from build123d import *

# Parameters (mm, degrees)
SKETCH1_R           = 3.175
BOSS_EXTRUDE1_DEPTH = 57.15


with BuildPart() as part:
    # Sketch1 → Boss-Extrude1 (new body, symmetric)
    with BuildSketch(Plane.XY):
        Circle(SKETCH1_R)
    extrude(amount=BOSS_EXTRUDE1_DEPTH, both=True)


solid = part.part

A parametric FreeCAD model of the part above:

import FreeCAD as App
import Part
import Sketcher
Q = App.Units.Quantity

doc = App.newDocument("Part")
body = doc.addObject("PartDesign::Body", "Body")

# Sketch on XY plane
sketch1 = body.newObject("Sketcher::SketchObject", "Sketch")
sketch1.AttachmentSupport = (doc.getObject("XY_Plane"), [""])
sketch1.MapMode = "FlatFace"
sketch1.addGeometry(Part.Circle(App.Vector(0, 0, 0), App.Vector(0, 0, 1), 3.175), False)
sketch1.addConstraint(Sketcher.Constraint("Coincident", 0, 3, -1, 1))
sketch1.addConstraint(Sketcher.Constraint("Diameter", 0, Q("0.25 in")))
pad1 = body.newObject("PartDesign::Pad", "Pad")
pad1.Profile = sketch1
pad1.Length = Q("4.5 in")
pad1.Midplane = True

doc.recompute()
